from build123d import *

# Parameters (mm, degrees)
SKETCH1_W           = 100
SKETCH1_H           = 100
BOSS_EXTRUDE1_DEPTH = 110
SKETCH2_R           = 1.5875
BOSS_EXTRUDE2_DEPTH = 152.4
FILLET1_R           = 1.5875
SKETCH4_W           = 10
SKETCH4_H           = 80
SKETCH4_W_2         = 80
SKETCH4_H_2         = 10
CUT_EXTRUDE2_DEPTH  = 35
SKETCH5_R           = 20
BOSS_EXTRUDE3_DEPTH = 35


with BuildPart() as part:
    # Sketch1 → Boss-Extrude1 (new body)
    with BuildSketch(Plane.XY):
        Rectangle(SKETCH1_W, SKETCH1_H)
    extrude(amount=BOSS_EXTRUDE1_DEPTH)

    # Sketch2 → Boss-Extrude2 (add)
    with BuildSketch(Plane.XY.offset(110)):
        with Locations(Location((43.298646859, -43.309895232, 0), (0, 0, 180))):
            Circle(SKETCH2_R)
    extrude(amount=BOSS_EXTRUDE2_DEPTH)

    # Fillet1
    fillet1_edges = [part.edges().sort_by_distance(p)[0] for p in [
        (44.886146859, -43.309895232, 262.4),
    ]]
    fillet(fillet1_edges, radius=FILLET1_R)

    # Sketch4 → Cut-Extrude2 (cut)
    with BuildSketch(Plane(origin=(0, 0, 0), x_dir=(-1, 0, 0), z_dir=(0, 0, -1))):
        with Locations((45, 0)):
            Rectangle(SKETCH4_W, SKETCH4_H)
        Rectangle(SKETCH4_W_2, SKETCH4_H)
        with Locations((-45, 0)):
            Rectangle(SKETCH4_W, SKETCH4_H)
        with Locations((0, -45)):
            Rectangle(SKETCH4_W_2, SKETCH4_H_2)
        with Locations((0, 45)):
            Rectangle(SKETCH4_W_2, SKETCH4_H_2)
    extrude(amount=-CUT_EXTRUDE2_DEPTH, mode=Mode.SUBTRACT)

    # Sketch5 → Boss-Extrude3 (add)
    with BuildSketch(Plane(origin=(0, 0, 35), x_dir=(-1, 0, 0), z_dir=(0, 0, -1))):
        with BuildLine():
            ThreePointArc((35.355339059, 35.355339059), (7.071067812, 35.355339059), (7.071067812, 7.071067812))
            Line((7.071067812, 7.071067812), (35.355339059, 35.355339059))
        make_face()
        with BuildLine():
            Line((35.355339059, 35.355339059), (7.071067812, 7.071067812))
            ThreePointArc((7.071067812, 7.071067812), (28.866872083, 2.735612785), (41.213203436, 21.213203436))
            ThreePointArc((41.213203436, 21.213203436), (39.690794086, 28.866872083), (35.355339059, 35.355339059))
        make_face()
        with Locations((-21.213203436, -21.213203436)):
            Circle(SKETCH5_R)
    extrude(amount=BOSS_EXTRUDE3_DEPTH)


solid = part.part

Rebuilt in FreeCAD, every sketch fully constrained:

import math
import FreeCAD as App
import Part
import Sketcher
Q = App.Units.Quantity


def edges_at(feature, points):
    """Names of the edges that pass closest to the given points."""
    edges = feature.Shape.Edges
    near = lambda p: min(range(len(edges)), key=lambda i: edges[i].distToShape(Part.Vertex(*p))[0])
    return sorted({f"Edge{near(p) + 1}" for p in points})


def add_polygon(sketch, points):
    """Adds a closed chain of lines whose ends are joined by coincident constraints."""
    first, n = sketch.GeometryCount, len(points)
    for a, b in zip(points, points[1:] + points[:1]):
        sketch.addGeometry(Part.LineSegment(App.Vector(*a, 0), App.Vector(*b, 0)), False)
    for i in range(n):
        sketch.addConstraint(Sketcher.Constraint("Coincident", first + i, 2, first + (i + 1) % n, 1))

doc = App.newDocument("Part")
params = doc.addObject("Spreadsheet::Sheet", "Params")
for row, (alias, value) in enumerate([
    ("sketch1_width", "100 mm"),
    ("pad1_length", "110 mm"),
    ("pad2_length", "152.4 mm"),
    ("fillet_radius", "1.5875 mm"),
    ("sketch3_width", "10 mm"),
    ("sketch3_width2", "80 mm"),
    ("pocket1_length", "35 mm"),
    ("sketch4_diameter", "40 mm"),
    ("pad3_length", "35 mm"),
], start=1):
    params.set(f"A{row}", alias)
    params.set(f"B{row}", "=" + value)
    params.setAlias(f"B{row}", alias)

body = doc.addObject("PartDesign::Body", "Body")

# Sketch on XY plane
sketch1 = body.newObject("Sketcher::SketchObject", "Sketch")
sketch1.AttachmentSupport = (doc.getObject("XY_Plane"), [""])
sketch1.MapMode = "FlatFace"
add_polygon(sketch1, [(-50, 50), (-50, -50), (50, -50), (50, 50)])  # lines 0-3
sketch1.addConstraint(Sketcher.Constraint("Vertical", 0))
sketch1.addConstraint(Sketcher.Constraint("Horizontal", 1))
sketch1.addConstraint(Sketcher.Constraint("Vertical", 2))
sketch1.addConstraint(Sketcher.Constraint("Horizontal", 3))
sketch1.addConstraint(Sketcher.Constraint("Symmetric", 0, 2, 2, 2, -1, 1))
sketch1.addConstraint(Sketcher.Constraint("Equal", 3, 0))
sketch1.addConstraint(Sketcher.Constraint("DistanceX", 1, 1, 1, 2, Q("100 mm")))
sketch1.setExpression("Constraints[10]", "Params.sketch1_width")
pad1 = body.newObject("PartDesign::Pad", "Pad")
pad1.Profile = sketch1
pad1.setExpression("Length", "Params.pad1_length")

# Sketch on XY plane
sketch2 = body.newObject("Sketcher::SketchObject", "Sketch001")
sketch2.AttachmentSupport = (doc.getObject("XY_Plane"), [""])
sketch2.MapMode = "FlatFace"
sketch2.AttachmentOffset = App.Placement(App.Vector(0, 0, 110), App.Rotation())
sketch2.addGeometry(Part.Circle(App.Vector(43.3, -43.3, 0), App.Vector(0, 0, 1), 1.6), False)
sketch2.addConstraint(Sketcher.Constraint("Diameter", 0, Q("3.175 mm")))
sketch2.addConstraint(Sketcher.Constraint("DistanceX", -1, 1, 0, 3, Q("43.298647 mm")))
sketch2.addConstraint(Sketcher.Constraint("DistanceY", 0, 3, -1, 1, Q("43.309895 mm")))
pad2 = body.newObject("PartDesign::Pad", "Pad001")
pad2.Profile = sketch2
pad2.setExpression("Length", "Params.pad2_length")
doc.recompute()

fillet = body.newObject("PartDesign::Fillet", "Fillet")
fillet.Base = (pad2, edges_at(pad2, [(44.886, -43.31, 262.4)]))
fillet.setExpression("Radius", "Params.fillet_radius")

# Sketch on XY plane
sketch3 = body.newObject("Sketcher::SketchObject", "Sketch002")
sketch3.AttachmentSupport = (doc.getObject("XY_Plane"), [""])
sketch3.MapMode = "FlatFace"
add_polygon(sketch3, [(-50, -40), (-50, 40), (-40, 40), (-40, 50), (40, 50), (40, 40), (50, 40), (50, -40), (40, -40), (40, -50), (-40, -50), (-40, -40)])  # lines 0-11
sketch3.addConstraint(Sketcher.Constraint("Vertical", 0))
sketch3.addConstraint(Sketcher.Constraint("Horizontal", 1))
sketch3.addConstraint(Sketcher.Constraint("Vertical", 2))
sketch3.addConstraint(Sketcher.Constraint("Horizontal", 3))
sketch3.addConstraint(Sketcher.Constraint("Vertical", 4))
sketch3.addConstraint(Sketcher.Constraint("Horizontal", 5))
sketch3.addConstraint(Sketcher.Constraint("Vertical", 6))
sketch3.addConstraint(Sketcher.Constraint("Horizontal", 7))
sketch3.addConstraint(Sketcher.Constraint("Vertical", 8))
sketch3.addConstraint(Sketcher.Constraint("Horizontal", 9))
sketch3.addConstraint(Sketcher.Constraint("Vertical", 10))
sketch3.addConstraint(Sketcher.Constraint("Horizontal", 11))
sketch3.addConstraint(Sketcher.Constraint("Symmetric", 0, 2, 6, 2, -1, 1))
sketch3.addConstraint(Sketcher.Constraint("Symmetric", 2, 2, 8, 2, -1, 1))
sketch3.addConstraint(Sketcher.Constraint("Symmetric", 4, 2, 10, 2, -1, 1))
sketch3.addConstraint(Sketcher.Constraint("Symmetric", 1, 2, 4, 2, -2))
sketch3.addConstraint(Sketcher.Constraint("Equal", 9, 0))
sketch3.addConstraint(Sketcher.Constraint("Equal", 11, 2))
sketch3.addConstraint(Sketcher.Constraint("DistanceX", 1, 1, 1, 2, Q("10 mm")))
sketch3.addConstraint(Sketcher.Constraint("DistanceX", 3, 1, 3, 2, Q("80 mm")))
sketch3.setExpression("Constraints[30]", "Params.sketch3_width")
sketch3.setExpression("Constraints[31]", "Params.sketch3_width2")
pocket1 = body.newObject("PartDesign::Pocket", "Pocket")
pocket1.Profile = sketch3
pocket1.setExpression("Length", "Params.pocket1_length")
pocket1.Reversed = True

# Sketch on XY plane
sketch4 = body.newObject("Sketcher::SketchObject", "Sketch003")
sketch4.AttachmentSupport = (doc.getObject("XY_Plane"), [""])
sketch4.MapMode = "FlatFace"
sketch4.AttachmentOffset = App.Placement(App.Vector(0, 0, 35), App.Rotation())
sketch4.addGeometry(Part.ArcOfCircle(Part.Circle(App.Vector(-21, 21, 0), App.Vector(0, 0, 1), 20), math.radians(-45), math.radians(135)), False)
sketch4.addGeometry(Part.ArcOfCircle(Part.Circle(App.Vector(-21, 21, 0), App.Vector(0, 0, 1), 20), math.radians(180), math.radians(315)), False)
sketch4.addGeometry(Part.ArcOfCircle(Part.Circle(App.Vector(-21, 21, 0), App.Vector(0, 0, 1), 20), math.radians(135), math.radians(180)), False)
sketch4.addGeometry(Part.Circle(App.Vector(21, -21, 0), App.Vector(0, 0, 1), 20), False)
sketch4.addConstraint(Sketcher.Constraint("Tangent", 0, 1, 1, 2))
sketch4.addConstraint(Sketcher.Constraint("Tangent", 1, 1, 2, 2))
sketch4.addConstraint(Sketcher.Constraint("Tangent", 2, 1, 0, 2))
sketch4.addConstraint(Sketcher.Constraint("Equal", 2, 3))
sketch4.addConstraint(Sketcher.Constraint("Symmetric", 0, 3, 3, 3, -1, 1))
sketch4.addConstraint(Sketcher.Constraint("Horizontal", 2, 3, 1, 1))
sketch4.addConstraint(Sketcher.Constraint("Diameter", 3, Q("40 mm")))
sketch4.addConstraint(Sketcher.Constraint("DistanceX", 2, 1, -1, 1, Q("35.355339 mm")))
sketch4.addConstraint(Sketcher.Constraint("DistanceY", -1, 1, 2, 1, Q("35.355339 mm")))
sketch4.addConstraint(Sketcher.Constraint("DistanceX", 0, 1, 3, 3, Q("28.284271 mm")))
sketch4.addConstraint(Sketcher.Constraint("DistanceX", 2, 1, 0, 1, Q("28.284271 mm")))
sketch4.setExpression("Constraints[6]", "Params.sketch4_diameter")
pad3 = body.newObject("PartDesign::Pad", "Pad002")
pad3.Profile = sketch4
pad3.setExpression("Length", "Params.pad3_length")
pad3.Reversed = True

doc.recompute()
